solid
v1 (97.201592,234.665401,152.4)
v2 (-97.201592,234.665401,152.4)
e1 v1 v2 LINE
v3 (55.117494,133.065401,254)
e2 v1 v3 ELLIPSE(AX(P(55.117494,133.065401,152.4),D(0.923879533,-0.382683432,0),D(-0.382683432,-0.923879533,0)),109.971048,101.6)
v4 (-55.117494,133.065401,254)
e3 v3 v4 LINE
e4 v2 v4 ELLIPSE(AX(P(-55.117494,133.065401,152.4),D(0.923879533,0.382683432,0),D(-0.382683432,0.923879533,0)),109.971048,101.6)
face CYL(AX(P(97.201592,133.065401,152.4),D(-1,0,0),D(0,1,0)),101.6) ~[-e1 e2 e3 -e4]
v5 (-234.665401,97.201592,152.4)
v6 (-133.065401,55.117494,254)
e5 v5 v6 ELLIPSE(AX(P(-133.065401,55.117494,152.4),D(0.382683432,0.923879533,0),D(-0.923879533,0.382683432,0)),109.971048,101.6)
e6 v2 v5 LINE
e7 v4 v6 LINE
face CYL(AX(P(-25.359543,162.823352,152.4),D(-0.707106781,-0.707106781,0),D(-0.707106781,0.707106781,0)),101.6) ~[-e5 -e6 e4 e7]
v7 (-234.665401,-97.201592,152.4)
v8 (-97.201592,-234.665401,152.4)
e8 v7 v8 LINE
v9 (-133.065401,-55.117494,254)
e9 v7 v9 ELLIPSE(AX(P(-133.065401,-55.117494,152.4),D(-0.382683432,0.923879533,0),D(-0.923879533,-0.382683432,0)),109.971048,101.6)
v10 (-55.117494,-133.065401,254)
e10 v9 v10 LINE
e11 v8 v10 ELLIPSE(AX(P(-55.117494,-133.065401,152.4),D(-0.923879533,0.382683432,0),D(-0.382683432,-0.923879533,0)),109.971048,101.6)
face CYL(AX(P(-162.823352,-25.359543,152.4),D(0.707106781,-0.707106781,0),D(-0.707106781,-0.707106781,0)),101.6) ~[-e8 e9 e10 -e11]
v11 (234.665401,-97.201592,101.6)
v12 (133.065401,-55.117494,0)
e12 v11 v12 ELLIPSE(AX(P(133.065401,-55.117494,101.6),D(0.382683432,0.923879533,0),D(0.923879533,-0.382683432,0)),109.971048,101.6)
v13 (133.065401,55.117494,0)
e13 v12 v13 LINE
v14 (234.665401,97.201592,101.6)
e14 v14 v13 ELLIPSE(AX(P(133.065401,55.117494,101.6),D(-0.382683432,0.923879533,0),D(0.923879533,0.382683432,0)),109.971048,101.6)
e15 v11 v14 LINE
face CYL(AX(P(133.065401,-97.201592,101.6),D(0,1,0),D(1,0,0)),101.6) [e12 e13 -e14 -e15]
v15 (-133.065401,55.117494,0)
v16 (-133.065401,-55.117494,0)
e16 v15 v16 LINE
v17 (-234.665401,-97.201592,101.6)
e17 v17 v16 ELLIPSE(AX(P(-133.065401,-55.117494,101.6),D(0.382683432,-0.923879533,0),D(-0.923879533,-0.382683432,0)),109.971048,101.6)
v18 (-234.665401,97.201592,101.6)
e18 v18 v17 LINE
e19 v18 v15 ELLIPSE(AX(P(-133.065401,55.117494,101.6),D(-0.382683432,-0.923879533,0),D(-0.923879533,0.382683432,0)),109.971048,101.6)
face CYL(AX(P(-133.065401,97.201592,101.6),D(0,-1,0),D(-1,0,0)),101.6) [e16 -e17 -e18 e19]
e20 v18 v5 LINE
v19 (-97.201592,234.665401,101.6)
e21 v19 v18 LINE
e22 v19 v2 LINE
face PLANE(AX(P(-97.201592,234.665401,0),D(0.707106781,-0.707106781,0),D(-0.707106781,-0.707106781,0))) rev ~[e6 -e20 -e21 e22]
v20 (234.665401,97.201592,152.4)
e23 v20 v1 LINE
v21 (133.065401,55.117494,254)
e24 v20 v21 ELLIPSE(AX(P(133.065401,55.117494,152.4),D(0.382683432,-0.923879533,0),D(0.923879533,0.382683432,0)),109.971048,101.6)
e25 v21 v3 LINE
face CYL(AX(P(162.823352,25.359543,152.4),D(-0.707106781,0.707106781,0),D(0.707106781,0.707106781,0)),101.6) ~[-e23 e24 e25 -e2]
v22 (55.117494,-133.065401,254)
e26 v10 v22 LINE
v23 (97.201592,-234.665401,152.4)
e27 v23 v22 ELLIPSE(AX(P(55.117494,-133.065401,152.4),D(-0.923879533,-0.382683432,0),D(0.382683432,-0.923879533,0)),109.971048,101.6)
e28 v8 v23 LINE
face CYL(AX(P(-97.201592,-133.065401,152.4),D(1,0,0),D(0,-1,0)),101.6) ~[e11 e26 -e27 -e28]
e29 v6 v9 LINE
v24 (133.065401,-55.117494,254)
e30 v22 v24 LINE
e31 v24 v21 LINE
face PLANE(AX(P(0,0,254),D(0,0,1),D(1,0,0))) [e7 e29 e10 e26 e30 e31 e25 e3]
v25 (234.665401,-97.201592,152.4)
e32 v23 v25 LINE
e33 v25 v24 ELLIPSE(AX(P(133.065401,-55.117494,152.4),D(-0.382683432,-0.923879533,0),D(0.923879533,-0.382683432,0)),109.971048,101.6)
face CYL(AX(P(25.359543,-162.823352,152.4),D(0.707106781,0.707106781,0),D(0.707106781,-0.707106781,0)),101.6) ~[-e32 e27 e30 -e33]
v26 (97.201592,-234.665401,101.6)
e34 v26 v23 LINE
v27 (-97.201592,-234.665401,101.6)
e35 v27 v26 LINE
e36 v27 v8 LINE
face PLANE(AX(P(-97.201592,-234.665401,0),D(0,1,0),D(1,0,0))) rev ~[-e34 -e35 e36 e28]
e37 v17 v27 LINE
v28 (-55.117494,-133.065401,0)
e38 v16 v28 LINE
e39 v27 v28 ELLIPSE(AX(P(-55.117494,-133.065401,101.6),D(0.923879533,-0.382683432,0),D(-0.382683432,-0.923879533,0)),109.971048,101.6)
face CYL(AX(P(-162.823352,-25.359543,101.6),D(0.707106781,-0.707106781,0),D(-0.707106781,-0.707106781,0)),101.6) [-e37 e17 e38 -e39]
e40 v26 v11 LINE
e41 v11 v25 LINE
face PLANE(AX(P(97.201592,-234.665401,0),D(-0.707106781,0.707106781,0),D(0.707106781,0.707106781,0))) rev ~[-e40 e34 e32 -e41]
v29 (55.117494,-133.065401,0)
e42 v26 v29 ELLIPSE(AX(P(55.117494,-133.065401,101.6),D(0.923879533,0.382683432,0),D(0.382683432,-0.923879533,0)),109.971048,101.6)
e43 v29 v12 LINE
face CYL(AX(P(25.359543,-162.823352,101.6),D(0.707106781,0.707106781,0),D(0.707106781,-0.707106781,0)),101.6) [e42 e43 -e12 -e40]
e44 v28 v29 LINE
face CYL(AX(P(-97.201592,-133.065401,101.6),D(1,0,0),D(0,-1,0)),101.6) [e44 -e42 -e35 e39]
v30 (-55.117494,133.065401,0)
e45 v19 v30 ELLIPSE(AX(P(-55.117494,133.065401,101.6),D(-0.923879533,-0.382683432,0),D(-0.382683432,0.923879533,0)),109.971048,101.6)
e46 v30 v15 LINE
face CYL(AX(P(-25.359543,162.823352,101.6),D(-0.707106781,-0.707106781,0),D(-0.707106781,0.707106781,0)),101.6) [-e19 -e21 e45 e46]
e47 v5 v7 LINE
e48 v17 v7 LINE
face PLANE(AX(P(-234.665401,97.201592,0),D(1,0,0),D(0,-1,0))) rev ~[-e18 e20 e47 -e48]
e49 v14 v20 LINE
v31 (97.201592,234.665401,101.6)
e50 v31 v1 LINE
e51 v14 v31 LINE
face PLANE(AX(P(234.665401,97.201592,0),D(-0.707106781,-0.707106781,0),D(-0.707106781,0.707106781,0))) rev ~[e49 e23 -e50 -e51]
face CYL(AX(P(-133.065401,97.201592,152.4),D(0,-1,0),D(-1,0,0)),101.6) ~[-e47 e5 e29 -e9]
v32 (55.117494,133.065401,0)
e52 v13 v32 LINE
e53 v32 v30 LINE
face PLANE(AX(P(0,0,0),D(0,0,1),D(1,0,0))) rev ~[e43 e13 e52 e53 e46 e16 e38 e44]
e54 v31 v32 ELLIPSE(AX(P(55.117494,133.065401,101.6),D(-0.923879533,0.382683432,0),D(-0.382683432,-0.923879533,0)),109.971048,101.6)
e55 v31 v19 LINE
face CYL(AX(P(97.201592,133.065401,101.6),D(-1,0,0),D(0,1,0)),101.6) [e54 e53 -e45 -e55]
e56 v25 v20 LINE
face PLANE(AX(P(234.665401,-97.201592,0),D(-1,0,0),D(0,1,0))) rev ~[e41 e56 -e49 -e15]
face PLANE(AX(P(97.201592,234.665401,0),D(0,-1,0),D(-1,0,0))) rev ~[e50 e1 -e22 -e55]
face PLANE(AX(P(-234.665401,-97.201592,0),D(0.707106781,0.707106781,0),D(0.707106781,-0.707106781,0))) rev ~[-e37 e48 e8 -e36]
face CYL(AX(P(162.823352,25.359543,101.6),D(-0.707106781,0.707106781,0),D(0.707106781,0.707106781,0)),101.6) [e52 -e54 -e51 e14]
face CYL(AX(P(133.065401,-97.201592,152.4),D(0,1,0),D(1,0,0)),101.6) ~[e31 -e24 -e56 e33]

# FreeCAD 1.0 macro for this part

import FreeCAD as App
import Part
import Sketcher

V = App.Vector


def edges_at(feature, points):
    """Names of the edges that pass closest to the given points."""
    edges = feature.Shape.Edges
    near = lambda p: min(range(len(edges)), key=lambda i: edges[i].distToShape(Part.Vertex(*p))[0])
    return sorted({f"Edge{near(p) + 1}" for p in points})


def add_polygon(sketch, points):
    """Adds a closed chain of lines whose ends are joined by coincident constraints."""
    first, n = sketch.GeometryCount, len(points)
    for a, b in zip(points, points[1:] + points[:1]):
        sketch.addGeometry(Part.LineSegment(App.Vector(*a, 0), App.Vector(*b, 0)), False)
    for i in range(n):
        sketch.addConstraint(Sketcher.Constraint("Coincident", first + i, 2, first + (i + 1) % n, 1))

doc = App.newDocument("Part")
params = doc.addObject("Spreadsheet::Sheet", "Params")
for row, (alias, value) in enumerate([
    ("pad1_length", "10 in"),
    ("fillet_radius", "4 in"),
], start=1):
    params.set(f"A{row}", alias)
    params.set(f"B{row}", "=" + value)
    params.setAlias(f"B{row}", alias)

body = doc.addObject("PartDesign::Body", "Body")

sketch1 = doc.addObject("Sketcher::SketchObject", "Sketch")
body.addObject(sketch1)
sketch1.AttachmentSupport = (doc.XY_Plane, [""])
sketch1.MapMode = "FlatFace"
add_polygon(sketch1, [(97.201592, 234.665401), (-97.201592, 234.665401), (-234.665401, 97.201592), (-234.665401, -97.201592), (-97.201592, -234.665401), (97.201592, -234.665401), (234.665401, -97.201592), (234.665401, 97.201592)])
sketch1.addConstraint(Sketcher.Constraint("Horizontal", 0))
sketch1.addConstraint(Sketcher.Constraint("Vertical", 2))
sketch1.addConstraint(Sketcher.Constraint("Horizontal", 4))
sketch1.addConstraint(Sketcher.Constraint("Vertical", 6))
sketch1.addConstraint(Sketcher.Constraint("Symmetric", 0, 2, 4, 2, -1, 1))
sketch1.addConstraint(Sketcher.Constraint("Symmetric", 1, 2, 5, 2, -1, 1))
sketch1.addConstraint(Sketcher.Constraint("Perpendicular", 1, 3))
sketch1.addConstraint(Sketcher.Constraint("Perpendicular", 5, 7))
sketch1.addConstraint(Sketcher.Constraint("Horizontal", 2, 2, 5, 2))
sketch1.addConstraint(Sketcher.Constraint("Horizontal", 1, 2, 6, 2))
sketch1.addConstraint(Sketcher.Constraint("Vertical", 0, 2, 3, 2))
sketch1.addConstraint(Sketcher.Constraint("Equal", 4, 2))
sketch1.addConstraint(Sketcher.Constraint("DistanceY", -1, 1, 0, 2, 234.665401))
sketch1.addConstraint(Sketcher.Constraint("DistanceX", 0, 2, 0, 1, 194.403184))
pad1 = doc.addObject("PartDesign::Pad", "Pad")
body.addObject(pad1)
pad1.Profile = sketch1
pad1.setExpression("Length", "Params.pad1_length")
doc.recompute()

fillet = doc.addObject("PartDesign::Fillet", "Fillet")
body.addObject(fillet)
fillet.Base = (pad1, edges_at(pad1, [
    (0, 234.665, 0),
    (-165.933, 165.933, 0),
    (-234.665, 0, 0),
    (-165.933, -165.933, 0),
    (0, -234.665, 0),
    (165.933, -165.933, 0),
    (234.665, 0, 0),
    (165.933, 165.933, 0),
    (0, 234.665, 254),
    (-165.933, 165.933, 254),
    (-234.665, 0, 254),
    (-165.933, -165.933, 254),
    (0, -234.665, 254),
    (165.933, -165.933, 254),
    (234.665, 0, 254),
    (165.933, 165.933, 254),
]))
fillet.setExpression("Radius", "Params.fillet_radius")

doc.recompute()
